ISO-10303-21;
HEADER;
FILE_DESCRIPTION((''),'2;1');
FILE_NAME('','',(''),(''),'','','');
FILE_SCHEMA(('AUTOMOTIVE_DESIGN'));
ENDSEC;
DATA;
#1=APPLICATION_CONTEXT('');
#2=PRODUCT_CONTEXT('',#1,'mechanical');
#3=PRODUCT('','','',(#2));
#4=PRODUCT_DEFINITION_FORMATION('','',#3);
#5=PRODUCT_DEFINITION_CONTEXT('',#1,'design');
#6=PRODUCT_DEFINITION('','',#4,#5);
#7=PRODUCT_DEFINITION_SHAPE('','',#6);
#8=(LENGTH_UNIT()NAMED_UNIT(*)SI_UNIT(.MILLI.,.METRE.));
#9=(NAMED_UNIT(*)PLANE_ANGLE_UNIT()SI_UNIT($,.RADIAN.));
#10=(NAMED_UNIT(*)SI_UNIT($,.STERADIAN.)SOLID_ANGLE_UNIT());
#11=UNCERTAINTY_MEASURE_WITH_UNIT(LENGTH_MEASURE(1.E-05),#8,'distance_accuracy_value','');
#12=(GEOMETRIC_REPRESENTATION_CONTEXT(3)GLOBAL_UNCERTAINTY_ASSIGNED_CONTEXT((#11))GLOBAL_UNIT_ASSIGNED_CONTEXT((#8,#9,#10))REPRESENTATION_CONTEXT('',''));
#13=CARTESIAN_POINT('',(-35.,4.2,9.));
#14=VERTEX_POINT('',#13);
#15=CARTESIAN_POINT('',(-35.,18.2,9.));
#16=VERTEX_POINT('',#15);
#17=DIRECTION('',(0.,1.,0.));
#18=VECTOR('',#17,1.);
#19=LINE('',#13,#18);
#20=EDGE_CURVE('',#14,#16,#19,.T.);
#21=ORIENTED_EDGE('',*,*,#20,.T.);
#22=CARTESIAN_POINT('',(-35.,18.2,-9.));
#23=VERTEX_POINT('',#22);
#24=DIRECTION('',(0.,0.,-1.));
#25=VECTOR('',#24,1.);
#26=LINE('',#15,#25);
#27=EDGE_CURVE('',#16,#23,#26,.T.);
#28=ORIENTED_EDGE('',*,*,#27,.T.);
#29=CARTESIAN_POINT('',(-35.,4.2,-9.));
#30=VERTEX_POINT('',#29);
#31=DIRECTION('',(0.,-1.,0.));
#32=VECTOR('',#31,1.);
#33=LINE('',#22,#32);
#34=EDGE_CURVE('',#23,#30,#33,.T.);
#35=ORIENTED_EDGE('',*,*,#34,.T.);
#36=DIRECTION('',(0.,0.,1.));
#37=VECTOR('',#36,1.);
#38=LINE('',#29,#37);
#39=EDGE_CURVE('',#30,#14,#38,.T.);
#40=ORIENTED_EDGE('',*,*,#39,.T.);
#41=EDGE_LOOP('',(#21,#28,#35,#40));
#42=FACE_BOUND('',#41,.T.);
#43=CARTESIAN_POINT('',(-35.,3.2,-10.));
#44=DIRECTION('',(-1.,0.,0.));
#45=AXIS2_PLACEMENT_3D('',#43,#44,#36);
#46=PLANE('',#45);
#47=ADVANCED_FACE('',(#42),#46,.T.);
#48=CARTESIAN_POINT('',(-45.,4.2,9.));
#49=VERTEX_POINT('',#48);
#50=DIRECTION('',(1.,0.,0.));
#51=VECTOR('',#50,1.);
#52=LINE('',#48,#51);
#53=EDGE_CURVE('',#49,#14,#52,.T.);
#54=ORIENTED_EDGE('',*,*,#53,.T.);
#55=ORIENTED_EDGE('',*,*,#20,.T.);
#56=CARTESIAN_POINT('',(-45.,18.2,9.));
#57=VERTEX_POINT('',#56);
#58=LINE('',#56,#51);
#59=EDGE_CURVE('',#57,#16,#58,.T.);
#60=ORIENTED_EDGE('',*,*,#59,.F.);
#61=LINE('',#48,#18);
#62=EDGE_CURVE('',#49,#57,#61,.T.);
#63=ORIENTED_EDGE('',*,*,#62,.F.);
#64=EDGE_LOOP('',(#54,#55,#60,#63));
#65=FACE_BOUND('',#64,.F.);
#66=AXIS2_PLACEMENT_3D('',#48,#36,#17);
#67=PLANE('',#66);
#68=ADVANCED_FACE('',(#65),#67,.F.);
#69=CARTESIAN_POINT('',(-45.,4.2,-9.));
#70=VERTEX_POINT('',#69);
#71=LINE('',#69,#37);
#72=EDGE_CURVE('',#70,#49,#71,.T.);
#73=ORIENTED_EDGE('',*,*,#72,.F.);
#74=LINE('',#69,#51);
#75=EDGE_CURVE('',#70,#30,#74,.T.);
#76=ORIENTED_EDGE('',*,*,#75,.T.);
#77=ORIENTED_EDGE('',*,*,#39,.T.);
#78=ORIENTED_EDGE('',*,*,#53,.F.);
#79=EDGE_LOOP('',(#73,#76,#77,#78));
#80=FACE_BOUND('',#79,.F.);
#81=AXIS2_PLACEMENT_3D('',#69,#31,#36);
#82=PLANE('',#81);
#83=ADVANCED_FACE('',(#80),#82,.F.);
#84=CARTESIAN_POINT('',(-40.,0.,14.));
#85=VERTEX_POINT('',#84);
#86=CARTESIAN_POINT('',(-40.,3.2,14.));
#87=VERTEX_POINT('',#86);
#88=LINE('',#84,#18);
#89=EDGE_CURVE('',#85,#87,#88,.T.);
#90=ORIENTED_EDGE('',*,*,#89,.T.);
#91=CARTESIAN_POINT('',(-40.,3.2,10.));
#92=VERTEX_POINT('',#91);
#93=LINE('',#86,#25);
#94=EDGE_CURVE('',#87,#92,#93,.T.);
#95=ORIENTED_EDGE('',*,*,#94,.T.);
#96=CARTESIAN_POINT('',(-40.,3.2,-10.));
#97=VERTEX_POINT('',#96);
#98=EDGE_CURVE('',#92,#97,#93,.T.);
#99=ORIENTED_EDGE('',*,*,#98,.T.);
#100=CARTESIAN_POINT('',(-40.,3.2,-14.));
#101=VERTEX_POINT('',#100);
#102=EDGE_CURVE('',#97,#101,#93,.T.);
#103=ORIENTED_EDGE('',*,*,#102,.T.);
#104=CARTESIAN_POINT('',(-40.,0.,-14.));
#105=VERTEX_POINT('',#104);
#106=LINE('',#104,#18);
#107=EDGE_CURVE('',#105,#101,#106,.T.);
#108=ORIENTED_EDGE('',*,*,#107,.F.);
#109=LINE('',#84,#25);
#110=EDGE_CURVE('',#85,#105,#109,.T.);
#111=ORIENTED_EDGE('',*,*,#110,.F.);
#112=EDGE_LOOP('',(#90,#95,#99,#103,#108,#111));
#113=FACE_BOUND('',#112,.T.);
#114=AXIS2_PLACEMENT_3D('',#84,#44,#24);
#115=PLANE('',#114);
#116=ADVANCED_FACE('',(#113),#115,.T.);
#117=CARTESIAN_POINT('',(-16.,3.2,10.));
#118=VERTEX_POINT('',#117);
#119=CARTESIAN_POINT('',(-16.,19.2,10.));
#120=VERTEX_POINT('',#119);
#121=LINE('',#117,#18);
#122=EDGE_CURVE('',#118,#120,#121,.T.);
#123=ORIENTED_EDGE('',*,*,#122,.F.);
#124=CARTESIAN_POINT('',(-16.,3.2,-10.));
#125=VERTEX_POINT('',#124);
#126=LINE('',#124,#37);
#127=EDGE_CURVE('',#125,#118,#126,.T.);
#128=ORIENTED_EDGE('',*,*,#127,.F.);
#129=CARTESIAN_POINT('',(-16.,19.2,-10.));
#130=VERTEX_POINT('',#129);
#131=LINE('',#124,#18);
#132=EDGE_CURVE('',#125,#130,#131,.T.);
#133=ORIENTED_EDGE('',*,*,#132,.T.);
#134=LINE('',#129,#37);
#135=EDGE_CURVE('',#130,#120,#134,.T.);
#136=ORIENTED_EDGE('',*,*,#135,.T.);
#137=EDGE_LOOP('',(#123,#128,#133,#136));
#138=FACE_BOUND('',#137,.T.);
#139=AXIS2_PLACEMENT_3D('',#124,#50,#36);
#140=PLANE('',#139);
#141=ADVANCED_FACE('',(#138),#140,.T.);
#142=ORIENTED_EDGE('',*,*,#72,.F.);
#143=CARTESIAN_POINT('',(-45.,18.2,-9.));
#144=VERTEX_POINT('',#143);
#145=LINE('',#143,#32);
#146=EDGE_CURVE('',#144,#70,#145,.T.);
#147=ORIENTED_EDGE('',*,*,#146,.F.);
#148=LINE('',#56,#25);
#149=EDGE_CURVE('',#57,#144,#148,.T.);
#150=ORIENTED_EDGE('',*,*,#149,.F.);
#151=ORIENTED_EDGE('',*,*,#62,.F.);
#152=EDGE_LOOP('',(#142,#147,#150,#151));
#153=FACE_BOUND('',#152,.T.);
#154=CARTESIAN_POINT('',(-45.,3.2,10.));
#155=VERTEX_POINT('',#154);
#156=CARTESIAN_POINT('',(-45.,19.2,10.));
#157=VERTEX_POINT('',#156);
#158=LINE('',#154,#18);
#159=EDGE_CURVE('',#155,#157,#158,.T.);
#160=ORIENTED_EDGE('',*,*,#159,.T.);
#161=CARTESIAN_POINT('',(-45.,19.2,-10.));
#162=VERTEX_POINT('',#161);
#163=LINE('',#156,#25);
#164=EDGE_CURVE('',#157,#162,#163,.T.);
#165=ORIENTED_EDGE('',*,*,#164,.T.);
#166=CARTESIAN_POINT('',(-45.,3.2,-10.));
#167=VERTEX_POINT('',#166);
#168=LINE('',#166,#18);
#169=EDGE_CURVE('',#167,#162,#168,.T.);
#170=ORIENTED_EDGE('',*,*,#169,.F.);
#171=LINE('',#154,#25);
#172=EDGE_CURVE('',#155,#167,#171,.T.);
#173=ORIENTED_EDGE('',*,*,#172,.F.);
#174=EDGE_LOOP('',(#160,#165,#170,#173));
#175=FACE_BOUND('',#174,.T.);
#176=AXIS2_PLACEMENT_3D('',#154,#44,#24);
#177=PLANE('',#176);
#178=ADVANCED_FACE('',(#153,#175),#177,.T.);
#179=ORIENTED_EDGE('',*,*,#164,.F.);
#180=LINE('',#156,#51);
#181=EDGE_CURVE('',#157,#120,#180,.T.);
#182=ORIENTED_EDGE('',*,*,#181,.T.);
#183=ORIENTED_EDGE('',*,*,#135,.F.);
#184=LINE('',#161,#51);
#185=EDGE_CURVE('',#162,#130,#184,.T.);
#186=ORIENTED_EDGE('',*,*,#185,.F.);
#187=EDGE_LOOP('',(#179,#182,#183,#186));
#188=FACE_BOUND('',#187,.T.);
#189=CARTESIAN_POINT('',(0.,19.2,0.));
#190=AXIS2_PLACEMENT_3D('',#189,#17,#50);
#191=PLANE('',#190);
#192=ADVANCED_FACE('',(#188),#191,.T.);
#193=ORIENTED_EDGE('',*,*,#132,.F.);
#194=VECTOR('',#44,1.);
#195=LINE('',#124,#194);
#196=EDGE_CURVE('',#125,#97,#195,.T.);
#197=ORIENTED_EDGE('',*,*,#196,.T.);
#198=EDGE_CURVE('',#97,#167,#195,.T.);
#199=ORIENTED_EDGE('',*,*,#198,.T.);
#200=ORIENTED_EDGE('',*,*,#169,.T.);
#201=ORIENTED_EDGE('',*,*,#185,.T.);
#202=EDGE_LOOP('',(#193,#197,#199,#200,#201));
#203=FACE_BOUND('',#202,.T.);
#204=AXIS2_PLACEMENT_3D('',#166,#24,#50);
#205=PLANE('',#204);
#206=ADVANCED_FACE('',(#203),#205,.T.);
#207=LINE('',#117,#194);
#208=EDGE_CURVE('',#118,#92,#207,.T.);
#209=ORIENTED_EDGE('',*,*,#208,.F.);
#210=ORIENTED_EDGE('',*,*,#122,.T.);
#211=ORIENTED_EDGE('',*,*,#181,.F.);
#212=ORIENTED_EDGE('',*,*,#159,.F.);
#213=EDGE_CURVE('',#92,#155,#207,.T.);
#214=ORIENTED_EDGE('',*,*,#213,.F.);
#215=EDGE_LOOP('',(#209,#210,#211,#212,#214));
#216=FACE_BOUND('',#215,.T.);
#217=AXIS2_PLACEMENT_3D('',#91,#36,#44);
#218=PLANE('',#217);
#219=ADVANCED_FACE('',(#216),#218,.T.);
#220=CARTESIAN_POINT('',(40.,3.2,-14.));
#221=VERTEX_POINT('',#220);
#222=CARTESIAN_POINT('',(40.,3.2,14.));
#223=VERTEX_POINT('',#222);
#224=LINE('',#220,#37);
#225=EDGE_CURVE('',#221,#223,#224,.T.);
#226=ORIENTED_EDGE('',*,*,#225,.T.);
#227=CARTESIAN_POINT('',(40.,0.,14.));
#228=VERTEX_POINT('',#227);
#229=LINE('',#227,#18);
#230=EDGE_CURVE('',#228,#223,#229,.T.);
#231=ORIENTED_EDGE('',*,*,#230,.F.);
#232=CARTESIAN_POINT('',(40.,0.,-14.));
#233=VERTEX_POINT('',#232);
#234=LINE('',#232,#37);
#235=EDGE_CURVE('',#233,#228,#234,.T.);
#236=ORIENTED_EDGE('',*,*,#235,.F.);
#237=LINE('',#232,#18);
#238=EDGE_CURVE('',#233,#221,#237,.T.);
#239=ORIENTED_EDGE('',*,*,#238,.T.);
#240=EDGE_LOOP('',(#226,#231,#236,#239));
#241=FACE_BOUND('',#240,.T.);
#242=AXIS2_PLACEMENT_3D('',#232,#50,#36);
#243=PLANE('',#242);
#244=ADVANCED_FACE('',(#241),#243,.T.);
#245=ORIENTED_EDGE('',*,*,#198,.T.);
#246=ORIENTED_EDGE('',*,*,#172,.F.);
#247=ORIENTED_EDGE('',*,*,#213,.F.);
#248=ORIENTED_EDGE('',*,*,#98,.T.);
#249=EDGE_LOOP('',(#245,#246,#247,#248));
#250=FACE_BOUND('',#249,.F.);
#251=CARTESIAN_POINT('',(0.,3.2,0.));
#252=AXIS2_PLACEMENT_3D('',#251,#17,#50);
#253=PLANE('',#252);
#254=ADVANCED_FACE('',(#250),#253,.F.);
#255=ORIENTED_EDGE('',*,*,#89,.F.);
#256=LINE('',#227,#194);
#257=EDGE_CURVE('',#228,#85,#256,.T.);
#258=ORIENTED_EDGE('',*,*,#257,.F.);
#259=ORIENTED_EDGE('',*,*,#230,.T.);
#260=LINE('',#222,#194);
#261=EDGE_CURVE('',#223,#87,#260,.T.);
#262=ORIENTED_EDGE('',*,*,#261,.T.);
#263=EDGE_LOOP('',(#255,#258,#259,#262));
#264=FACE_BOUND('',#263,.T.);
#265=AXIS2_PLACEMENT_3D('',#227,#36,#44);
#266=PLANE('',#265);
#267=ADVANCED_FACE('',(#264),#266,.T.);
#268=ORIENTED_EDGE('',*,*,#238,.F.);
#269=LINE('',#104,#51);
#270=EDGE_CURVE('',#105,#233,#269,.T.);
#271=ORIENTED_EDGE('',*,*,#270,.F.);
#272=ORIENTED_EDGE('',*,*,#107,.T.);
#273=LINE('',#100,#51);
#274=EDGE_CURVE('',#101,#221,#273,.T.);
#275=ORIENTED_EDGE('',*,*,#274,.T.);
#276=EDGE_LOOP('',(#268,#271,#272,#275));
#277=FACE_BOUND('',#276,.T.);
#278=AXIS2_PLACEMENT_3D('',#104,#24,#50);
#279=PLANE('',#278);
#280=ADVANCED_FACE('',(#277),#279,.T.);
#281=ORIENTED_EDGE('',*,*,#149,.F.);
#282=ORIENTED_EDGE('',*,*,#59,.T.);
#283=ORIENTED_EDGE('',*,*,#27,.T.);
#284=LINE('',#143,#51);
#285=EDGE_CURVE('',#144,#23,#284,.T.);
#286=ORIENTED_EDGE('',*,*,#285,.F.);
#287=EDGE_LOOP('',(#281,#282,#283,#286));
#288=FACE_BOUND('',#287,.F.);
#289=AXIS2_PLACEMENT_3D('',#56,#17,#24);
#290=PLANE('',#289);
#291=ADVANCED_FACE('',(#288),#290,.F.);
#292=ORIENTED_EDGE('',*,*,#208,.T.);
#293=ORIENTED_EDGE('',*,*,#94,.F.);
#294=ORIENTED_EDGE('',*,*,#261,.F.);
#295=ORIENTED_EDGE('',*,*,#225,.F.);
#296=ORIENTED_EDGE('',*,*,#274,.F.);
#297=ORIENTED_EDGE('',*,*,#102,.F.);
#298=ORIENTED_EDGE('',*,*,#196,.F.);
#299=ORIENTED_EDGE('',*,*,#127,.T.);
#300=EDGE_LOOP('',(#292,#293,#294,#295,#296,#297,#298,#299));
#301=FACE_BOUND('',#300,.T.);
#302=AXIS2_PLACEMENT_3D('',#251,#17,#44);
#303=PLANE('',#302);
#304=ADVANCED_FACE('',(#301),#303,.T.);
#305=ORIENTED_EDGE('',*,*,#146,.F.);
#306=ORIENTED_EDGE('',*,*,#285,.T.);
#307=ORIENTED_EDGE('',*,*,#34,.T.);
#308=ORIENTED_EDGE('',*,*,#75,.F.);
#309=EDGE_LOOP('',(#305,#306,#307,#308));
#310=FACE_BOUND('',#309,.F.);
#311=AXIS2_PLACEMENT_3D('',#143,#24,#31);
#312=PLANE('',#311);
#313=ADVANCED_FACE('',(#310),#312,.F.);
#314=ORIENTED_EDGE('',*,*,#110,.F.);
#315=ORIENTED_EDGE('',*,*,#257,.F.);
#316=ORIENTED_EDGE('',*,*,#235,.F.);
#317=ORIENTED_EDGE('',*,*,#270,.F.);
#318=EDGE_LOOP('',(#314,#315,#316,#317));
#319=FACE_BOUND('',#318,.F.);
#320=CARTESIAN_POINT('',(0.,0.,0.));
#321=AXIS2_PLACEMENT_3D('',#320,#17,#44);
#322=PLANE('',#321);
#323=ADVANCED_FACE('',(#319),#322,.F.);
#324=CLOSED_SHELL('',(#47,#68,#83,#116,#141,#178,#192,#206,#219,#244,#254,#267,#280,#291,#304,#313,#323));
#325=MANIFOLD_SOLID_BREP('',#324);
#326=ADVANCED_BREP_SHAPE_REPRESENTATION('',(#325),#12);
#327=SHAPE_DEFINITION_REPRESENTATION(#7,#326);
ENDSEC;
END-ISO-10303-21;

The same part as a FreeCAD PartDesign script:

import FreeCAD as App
import Part
import Sketcher

V = App.Vector
Q = App.Units.Quantity


def add_polygon(sketch, points):
    """Adds a closed chain of lines whose ends are joined by coincident constraints."""
    first, n = sketch.GeometryCount, len(points)
    for a, b in zip(points, points[1:] + points[:1]):
        sketch.addGeometry(Part.LineSegment(App.Vector(*a, 0), App.Vector(*b, 0)), False)
    for i in range(n):
        sketch.addConstraint(Sketcher.Constraint("Coincident", first + i, 2, first + (i + 1) % n, 1))

doc = App.newDocument("Part")
body = doc.addObject("PartDesign::Body", "Body")

sketch1 = body.newObject("Sketcher::SketchObject", "Sketch")
sketch1.AttachmentSupport = (doc.getObject("XZ_Plane"), [""])
sketch1.MapMode = "FlatFace"
add_polygon(sketch1, [(-40, 14), (40, 14), (40, -14), (-40, -14)])
sketch1.addConstraint([
    Sketcher.Constraint("Horizontal", 0),
    Sketcher.Constraint("Vertical", 1),
    Sketcher.Constraint("Horizontal", 2),
    Sketcher.Constraint("Vertical", 3),
    Sketcher.Constraint("Symmetric", 0, 2, 2, 2, -1, 1),
    Sketcher.Constraint("DistanceX", 0, 1, 0, 2, Q("80 mm")),
    Sketcher.Constraint("DistanceY", 1, 2, 1, 1, Q("28 mm")),
])
pad1 = body.newObject("PartDesign::Pad", "Pad")
pad1.Profile = sketch1
pad1.Length = 3.2
pad1.Reversed = True

sketch2 = body.newObject("Sketcher::SketchObject", "Sketch001")
sketch2.AttachmentSupport = (doc.getObject("XZ_Plane"), [""])
sketch2.MapMode = "FlatFace"
sketch2.AttachmentOffset = App.Placement(V(0, 0, -3.2), App.Rotation())
add_polygon(sketch2, [(-45, -10), (-45, 10), (-16, 10), (-16, -10)])
sketch2.addConstraint([
    Sketcher.Constraint("Vertical", 0),
    Sketcher.Constraint("Horizontal", 1),
    Sketcher.Constraint("Vertical", 2),
    Sketcher.Constraint("Horizontal", 3),
    Sketcher.Constraint("DistanceX", 1, 1, 1, 2, Q("29 mm")),
    Sketcher.Constraint("DistanceY", 0, 1, 0, 2, Q("20 mm")),
    Sketcher.Constraint("DistanceX", 0, 2, -1, 1, Q("45 mm")),
    Sketcher.Constraint("DistanceY", -1, 1, 0, 2, Q("10 mm")),
])
pad2 = body.newObject("PartDesign::Pad", "Pad001")
pad2.Profile = sketch2
pad2.Length = 16
pad2.Reversed = True

sketch3 = body.newObject("Sketcher::SketchObject", "Sketch002")
sketch3.AttachmentSupport = (doc.getObject("YZ_Plane"), [""])
sketch3.MapMode = "FlatFace"
sketch3.AttachmentOffset = App.Placement(V(0, 0, -45), App.Rotation())
add_polygon(sketch3, [(18, -9), (4, -9), (4, 9), (18, 9)])
sketch3.addConstraint([
    Sketcher.Constraint("Horizontal", 0),
    Sketcher.Constraint("Vertical", 1),
    Sketcher.Constraint("Horizontal", 2),
    Sketcher.Constraint("Vertical", 3),
    Sketcher.Constraint("DistanceX", 0, 2, 0, 1, Q("14 mm")),
    Sketcher.Constraint("DistanceY", 1, 1, 1, 2, Q("18 mm")),
    Sketcher.Constraint("DistanceY", 0, 2, -1, 1, Q("9 mm")),
    Sketcher.Constraint("DistanceX", -1, 1, 0, 2, Q("4.2 mm")),
])
pocket1 = body.newObject("PartDesign::Pocket", "Pocket")
pocket1.Profile = sketch3
pocket1.Length = 10
pocket1.Reversed = True

doc.recompute()
